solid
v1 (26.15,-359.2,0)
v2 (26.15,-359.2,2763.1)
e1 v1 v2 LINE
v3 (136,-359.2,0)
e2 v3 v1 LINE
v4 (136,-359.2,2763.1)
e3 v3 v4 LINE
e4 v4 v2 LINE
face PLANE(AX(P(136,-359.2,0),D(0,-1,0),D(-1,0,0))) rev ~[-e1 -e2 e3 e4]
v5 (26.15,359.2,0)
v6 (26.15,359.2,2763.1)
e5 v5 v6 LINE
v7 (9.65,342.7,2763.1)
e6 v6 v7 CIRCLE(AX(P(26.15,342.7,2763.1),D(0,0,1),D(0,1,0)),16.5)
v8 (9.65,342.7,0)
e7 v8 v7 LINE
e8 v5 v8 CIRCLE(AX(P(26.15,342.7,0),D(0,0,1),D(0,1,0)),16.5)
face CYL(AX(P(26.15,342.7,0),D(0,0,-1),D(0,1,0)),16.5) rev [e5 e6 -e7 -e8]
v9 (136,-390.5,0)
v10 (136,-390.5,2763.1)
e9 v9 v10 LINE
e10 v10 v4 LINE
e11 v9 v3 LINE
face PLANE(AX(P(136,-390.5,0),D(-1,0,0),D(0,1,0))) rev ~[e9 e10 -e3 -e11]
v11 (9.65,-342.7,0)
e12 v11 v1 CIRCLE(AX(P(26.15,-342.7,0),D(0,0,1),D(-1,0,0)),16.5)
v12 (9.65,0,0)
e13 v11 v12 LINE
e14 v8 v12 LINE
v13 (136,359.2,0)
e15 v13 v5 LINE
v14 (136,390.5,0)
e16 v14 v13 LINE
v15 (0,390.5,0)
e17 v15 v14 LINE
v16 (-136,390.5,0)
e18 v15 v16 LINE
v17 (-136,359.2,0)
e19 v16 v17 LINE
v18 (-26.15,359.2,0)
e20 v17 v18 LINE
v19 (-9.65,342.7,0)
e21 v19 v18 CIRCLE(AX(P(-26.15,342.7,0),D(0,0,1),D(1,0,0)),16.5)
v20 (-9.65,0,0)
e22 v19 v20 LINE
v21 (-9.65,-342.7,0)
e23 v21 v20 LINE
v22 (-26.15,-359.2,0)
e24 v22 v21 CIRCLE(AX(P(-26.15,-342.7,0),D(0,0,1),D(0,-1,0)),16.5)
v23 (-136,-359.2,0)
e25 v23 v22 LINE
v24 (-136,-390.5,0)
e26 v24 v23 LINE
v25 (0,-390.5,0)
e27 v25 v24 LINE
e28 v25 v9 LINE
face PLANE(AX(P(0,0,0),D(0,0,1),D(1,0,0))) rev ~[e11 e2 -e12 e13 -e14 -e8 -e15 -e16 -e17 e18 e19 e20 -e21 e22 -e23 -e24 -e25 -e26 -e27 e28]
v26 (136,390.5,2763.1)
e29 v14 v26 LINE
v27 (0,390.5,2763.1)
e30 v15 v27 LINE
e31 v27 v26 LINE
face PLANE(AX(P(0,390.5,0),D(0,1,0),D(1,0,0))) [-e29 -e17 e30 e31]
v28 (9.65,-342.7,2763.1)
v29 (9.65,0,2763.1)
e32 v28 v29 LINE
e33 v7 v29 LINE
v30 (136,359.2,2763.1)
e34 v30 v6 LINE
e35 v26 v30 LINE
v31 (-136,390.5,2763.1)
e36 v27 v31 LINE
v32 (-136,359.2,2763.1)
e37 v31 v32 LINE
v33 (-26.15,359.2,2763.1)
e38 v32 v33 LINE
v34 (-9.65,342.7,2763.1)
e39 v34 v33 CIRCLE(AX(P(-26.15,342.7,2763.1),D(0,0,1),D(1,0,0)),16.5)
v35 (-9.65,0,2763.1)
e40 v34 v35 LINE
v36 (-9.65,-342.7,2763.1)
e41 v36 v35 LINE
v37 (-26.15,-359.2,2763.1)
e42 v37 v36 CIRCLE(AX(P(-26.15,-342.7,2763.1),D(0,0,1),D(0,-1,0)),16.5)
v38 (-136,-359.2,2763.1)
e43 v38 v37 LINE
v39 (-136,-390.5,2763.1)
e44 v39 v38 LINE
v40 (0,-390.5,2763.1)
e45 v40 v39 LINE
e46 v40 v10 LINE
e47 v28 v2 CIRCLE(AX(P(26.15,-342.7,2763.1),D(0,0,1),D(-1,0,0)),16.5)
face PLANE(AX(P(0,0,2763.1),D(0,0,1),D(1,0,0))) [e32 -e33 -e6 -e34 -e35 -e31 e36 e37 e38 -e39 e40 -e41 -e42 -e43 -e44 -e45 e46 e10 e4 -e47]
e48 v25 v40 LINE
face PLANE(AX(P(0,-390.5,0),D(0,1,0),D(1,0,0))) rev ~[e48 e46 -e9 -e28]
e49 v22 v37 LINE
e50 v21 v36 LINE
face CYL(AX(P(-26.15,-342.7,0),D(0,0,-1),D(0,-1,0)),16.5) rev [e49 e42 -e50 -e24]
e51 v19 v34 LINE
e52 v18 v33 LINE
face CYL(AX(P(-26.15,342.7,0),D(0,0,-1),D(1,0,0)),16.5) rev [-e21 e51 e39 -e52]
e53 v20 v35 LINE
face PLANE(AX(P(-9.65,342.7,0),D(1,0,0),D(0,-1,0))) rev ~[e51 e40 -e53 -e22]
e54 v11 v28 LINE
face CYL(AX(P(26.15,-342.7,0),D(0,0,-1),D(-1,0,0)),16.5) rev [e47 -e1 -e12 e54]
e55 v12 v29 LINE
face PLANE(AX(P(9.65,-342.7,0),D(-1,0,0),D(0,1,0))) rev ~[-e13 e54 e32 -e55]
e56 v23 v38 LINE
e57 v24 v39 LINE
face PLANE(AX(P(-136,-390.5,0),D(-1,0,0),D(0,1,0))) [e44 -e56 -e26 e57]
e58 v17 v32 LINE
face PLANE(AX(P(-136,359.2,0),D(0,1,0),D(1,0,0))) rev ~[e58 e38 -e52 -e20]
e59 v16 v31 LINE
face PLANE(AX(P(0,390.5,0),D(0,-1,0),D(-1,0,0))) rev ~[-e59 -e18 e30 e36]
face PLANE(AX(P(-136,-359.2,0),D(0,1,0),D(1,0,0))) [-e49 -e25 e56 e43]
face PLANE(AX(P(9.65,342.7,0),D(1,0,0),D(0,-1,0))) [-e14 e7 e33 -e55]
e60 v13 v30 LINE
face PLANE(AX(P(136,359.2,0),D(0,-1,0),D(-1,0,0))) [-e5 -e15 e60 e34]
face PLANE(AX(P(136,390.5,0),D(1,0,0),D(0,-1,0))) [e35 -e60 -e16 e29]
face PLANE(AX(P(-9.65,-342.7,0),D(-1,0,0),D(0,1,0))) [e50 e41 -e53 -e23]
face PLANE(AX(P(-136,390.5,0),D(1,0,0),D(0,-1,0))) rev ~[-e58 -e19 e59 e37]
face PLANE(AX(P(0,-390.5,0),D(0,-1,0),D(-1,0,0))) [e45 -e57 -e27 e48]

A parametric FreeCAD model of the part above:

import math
import FreeCAD as App
import Part
import Sketcher
Q = App.Units.Quantity

doc = App.newDocument("Part")
params = doc.addObject("Spreadsheet::Sheet", "Params")
for row, (alias, value) in enumerate([
    ("sketch1_radius", "16.5 mm"),
    ("sketch1_height", "31.3 mm"),
    ("pad1_length", "2763.1 mm"),
], start=1):
    params.set(f"A{row}", alias)
    params.set(f"B{row}", "=" + value)
    params.setAlias(f"B{row}", alias)

body = doc.addObject("PartDesign::Body", "Body")

sketch1 = doc.addObject("Sketcher::SketchObject", "Sketch")
body.addObject(sketch1)
sketch1.AttachmentSupport = (doc.XY_Plane, [""])
sketch1.MapMode = "FlatFace"
sketch1.addGeometry([
    Part.LineSegment(App.Vector(-136, -359, 0), App.Vector(-136, -390, 0)),
    Part.LineSegment(App.Vector(-136, -390, 0), App.Vector(136, -390, 0)),
    Part.LineSegment(App.Vector(136, -390, 0), App.Vector(136, -359, 0)),
    Part.LineSegment(App.Vector(136, -359, 0), App.Vector(26, -359, 0)),
    Part.ArcOfCircle(Part.Circle(App.Vector(26, -343, 0), App.Vector(0, 0, 1), 16), math.radians(180), math.radians(270)),
    Part.LineSegment(App.Vector(10, -343, 0), App.Vector(10, 343, 0)),
    Part.ArcOfCircle(Part.Circle(App.Vector(26, 343, 0), App.Vector(0, 0, 1), 16), math.radians(90), math.radians(180)),
    Part.LineSegment(App.Vector(26, 359, 0), App.Vector(136, 359, 0)),
    Part.LineSegment(App.Vector(136, 359, 0), App.Vector(136, 390, 0)),
    Part.LineSegment(App.Vector(136, 390, 0), App.Vector(-136, 390, 0)),
    Part.LineSegment(App.Vector(-136, 390, 0), App.Vector(-136, 359, 0)),
    Part.LineSegment(App.Vector(-136, 359, 0), App.Vector(-26, 359, 0)),
    Part.ArcOfCircle(Part.Circle(App.Vector(-26, 343, 0), App.Vector(0, 0, 1), 16), math.radians(0), math.radians(90)),
    Part.LineSegment(App.Vector(-10, 343, 0), App.Vector(-10, -343, 0)),
    Part.ArcOfCircle(Part.Circle(App.Vector(-26, -343, 0), App.Vector(0, 0, 1), 16), math.radians(-90), math.radians(0)),
    Part.LineSegment(App.Vector(-26, -359, 0), App.Vector(-136, -359, 0)),
], False)
sketch1.addConstraint([
    Sketcher.Constraint("Coincident", 0, 2, 1, 1),
    Sketcher.Constraint("Coincident", 1, 2, 2, 1),
    Sketcher.Constraint("Coincident", 2, 2, 3, 1),
    Sketcher.Constraint("Tangent", 3, 2, 4, 2),
    Sketcher.Constraint("Tangent", 4, 1, 5, 1),
    Sketcher.Constraint("Tangent", 5, 2, 6, 2),
    Sketcher.Constraint("Tangent", 6, 1, 7, 1),
    Sketcher.Constraint("Coincident", 7, 2, 8, 1),
    Sketcher.Constraint("Coincident", 8, 2, 9, 1),
    Sketcher.Constraint("Coincident", 9, 2, 10, 1),
    Sketcher.Constraint("Coincident", 10, 2, 11, 1),
    Sketcher.Constraint("Tangent", 11, 2, 12, 2),
    Sketcher.Constraint("Tangent", 12, 1, 13, 1),
    Sketcher.Constraint("Tangent", 13, 2, 14, 2),
    Sketcher.Constraint("Tangent", 14, 1, 15, 1),
    Sketcher.Constraint("Coincident", 15, 2, 0, 1),
    Sketcher.Constraint("Vertical", 0),
    Sketcher.Constraint("Horizontal", 1),
    Sketcher.Constraint("Vertical", 2),
    Sketcher.Constraint("Horizontal", 3),
    Sketcher.Constraint("Vertical", 5),
    Sketcher.Constraint("Horizontal", 7),
    Sketcher.Constraint("Vertical", 8),
    Sketcher.Constraint("Horizontal", 9),
    Sketcher.Constraint("Vertical", 10),
    Sketcher.Constraint("Horizontal", 11),
    Sketcher.Constraint("Vertical", 13),
    Sketcher.Constraint("Horizontal", 15),
    Sketcher.Constraint("Equal", 4, 6),
    Sketcher.Constraint("Equal", 6, 12),
    Sketcher.Constraint("Equal", 12, 14),
    Sketcher.Constraint("Symmetric", 4, 3, 12, 3, -1, 1),
    Sketcher.Constraint("Symmetric", 0, 2, 8, 2, -1, 1),
    Sketcher.Constraint("Symmetric", 7, 2, 10, 2, -2),
    Sketcher.Constraint("Symmetric", 2, 2, 15, 2, -2),
    Sketcher.Constraint("Radius", 4, Q("16.5 mm")),
    Sketcher.Constraint("DistanceY", 0, 2, 0, 1, Q("31.3 mm")),
    Sketcher.Constraint("DistanceX", 0, 2, -1, 1, Q("136 mm")),
    Sketcher.Constraint("DistanceY", 0, 2, -1, 1, Q("390.5 mm")),
    Sketcher.Constraint("DistanceX", -1, 1, 4, 1, Q("9.65 mm")),
])
sketch1.setExpression("Constraints[35]", "Params.sketch1_radius")
sketch1.setExpression("Constraints[36]", "Params.sketch1_height")
pad1 = doc.addObject("PartDesign::Pad", "Pad")
body.addObject(pad1)
pad1.Profile = sketch1
pad1.setExpression("Length", "Params.pad1_length")

doc.recompute()
